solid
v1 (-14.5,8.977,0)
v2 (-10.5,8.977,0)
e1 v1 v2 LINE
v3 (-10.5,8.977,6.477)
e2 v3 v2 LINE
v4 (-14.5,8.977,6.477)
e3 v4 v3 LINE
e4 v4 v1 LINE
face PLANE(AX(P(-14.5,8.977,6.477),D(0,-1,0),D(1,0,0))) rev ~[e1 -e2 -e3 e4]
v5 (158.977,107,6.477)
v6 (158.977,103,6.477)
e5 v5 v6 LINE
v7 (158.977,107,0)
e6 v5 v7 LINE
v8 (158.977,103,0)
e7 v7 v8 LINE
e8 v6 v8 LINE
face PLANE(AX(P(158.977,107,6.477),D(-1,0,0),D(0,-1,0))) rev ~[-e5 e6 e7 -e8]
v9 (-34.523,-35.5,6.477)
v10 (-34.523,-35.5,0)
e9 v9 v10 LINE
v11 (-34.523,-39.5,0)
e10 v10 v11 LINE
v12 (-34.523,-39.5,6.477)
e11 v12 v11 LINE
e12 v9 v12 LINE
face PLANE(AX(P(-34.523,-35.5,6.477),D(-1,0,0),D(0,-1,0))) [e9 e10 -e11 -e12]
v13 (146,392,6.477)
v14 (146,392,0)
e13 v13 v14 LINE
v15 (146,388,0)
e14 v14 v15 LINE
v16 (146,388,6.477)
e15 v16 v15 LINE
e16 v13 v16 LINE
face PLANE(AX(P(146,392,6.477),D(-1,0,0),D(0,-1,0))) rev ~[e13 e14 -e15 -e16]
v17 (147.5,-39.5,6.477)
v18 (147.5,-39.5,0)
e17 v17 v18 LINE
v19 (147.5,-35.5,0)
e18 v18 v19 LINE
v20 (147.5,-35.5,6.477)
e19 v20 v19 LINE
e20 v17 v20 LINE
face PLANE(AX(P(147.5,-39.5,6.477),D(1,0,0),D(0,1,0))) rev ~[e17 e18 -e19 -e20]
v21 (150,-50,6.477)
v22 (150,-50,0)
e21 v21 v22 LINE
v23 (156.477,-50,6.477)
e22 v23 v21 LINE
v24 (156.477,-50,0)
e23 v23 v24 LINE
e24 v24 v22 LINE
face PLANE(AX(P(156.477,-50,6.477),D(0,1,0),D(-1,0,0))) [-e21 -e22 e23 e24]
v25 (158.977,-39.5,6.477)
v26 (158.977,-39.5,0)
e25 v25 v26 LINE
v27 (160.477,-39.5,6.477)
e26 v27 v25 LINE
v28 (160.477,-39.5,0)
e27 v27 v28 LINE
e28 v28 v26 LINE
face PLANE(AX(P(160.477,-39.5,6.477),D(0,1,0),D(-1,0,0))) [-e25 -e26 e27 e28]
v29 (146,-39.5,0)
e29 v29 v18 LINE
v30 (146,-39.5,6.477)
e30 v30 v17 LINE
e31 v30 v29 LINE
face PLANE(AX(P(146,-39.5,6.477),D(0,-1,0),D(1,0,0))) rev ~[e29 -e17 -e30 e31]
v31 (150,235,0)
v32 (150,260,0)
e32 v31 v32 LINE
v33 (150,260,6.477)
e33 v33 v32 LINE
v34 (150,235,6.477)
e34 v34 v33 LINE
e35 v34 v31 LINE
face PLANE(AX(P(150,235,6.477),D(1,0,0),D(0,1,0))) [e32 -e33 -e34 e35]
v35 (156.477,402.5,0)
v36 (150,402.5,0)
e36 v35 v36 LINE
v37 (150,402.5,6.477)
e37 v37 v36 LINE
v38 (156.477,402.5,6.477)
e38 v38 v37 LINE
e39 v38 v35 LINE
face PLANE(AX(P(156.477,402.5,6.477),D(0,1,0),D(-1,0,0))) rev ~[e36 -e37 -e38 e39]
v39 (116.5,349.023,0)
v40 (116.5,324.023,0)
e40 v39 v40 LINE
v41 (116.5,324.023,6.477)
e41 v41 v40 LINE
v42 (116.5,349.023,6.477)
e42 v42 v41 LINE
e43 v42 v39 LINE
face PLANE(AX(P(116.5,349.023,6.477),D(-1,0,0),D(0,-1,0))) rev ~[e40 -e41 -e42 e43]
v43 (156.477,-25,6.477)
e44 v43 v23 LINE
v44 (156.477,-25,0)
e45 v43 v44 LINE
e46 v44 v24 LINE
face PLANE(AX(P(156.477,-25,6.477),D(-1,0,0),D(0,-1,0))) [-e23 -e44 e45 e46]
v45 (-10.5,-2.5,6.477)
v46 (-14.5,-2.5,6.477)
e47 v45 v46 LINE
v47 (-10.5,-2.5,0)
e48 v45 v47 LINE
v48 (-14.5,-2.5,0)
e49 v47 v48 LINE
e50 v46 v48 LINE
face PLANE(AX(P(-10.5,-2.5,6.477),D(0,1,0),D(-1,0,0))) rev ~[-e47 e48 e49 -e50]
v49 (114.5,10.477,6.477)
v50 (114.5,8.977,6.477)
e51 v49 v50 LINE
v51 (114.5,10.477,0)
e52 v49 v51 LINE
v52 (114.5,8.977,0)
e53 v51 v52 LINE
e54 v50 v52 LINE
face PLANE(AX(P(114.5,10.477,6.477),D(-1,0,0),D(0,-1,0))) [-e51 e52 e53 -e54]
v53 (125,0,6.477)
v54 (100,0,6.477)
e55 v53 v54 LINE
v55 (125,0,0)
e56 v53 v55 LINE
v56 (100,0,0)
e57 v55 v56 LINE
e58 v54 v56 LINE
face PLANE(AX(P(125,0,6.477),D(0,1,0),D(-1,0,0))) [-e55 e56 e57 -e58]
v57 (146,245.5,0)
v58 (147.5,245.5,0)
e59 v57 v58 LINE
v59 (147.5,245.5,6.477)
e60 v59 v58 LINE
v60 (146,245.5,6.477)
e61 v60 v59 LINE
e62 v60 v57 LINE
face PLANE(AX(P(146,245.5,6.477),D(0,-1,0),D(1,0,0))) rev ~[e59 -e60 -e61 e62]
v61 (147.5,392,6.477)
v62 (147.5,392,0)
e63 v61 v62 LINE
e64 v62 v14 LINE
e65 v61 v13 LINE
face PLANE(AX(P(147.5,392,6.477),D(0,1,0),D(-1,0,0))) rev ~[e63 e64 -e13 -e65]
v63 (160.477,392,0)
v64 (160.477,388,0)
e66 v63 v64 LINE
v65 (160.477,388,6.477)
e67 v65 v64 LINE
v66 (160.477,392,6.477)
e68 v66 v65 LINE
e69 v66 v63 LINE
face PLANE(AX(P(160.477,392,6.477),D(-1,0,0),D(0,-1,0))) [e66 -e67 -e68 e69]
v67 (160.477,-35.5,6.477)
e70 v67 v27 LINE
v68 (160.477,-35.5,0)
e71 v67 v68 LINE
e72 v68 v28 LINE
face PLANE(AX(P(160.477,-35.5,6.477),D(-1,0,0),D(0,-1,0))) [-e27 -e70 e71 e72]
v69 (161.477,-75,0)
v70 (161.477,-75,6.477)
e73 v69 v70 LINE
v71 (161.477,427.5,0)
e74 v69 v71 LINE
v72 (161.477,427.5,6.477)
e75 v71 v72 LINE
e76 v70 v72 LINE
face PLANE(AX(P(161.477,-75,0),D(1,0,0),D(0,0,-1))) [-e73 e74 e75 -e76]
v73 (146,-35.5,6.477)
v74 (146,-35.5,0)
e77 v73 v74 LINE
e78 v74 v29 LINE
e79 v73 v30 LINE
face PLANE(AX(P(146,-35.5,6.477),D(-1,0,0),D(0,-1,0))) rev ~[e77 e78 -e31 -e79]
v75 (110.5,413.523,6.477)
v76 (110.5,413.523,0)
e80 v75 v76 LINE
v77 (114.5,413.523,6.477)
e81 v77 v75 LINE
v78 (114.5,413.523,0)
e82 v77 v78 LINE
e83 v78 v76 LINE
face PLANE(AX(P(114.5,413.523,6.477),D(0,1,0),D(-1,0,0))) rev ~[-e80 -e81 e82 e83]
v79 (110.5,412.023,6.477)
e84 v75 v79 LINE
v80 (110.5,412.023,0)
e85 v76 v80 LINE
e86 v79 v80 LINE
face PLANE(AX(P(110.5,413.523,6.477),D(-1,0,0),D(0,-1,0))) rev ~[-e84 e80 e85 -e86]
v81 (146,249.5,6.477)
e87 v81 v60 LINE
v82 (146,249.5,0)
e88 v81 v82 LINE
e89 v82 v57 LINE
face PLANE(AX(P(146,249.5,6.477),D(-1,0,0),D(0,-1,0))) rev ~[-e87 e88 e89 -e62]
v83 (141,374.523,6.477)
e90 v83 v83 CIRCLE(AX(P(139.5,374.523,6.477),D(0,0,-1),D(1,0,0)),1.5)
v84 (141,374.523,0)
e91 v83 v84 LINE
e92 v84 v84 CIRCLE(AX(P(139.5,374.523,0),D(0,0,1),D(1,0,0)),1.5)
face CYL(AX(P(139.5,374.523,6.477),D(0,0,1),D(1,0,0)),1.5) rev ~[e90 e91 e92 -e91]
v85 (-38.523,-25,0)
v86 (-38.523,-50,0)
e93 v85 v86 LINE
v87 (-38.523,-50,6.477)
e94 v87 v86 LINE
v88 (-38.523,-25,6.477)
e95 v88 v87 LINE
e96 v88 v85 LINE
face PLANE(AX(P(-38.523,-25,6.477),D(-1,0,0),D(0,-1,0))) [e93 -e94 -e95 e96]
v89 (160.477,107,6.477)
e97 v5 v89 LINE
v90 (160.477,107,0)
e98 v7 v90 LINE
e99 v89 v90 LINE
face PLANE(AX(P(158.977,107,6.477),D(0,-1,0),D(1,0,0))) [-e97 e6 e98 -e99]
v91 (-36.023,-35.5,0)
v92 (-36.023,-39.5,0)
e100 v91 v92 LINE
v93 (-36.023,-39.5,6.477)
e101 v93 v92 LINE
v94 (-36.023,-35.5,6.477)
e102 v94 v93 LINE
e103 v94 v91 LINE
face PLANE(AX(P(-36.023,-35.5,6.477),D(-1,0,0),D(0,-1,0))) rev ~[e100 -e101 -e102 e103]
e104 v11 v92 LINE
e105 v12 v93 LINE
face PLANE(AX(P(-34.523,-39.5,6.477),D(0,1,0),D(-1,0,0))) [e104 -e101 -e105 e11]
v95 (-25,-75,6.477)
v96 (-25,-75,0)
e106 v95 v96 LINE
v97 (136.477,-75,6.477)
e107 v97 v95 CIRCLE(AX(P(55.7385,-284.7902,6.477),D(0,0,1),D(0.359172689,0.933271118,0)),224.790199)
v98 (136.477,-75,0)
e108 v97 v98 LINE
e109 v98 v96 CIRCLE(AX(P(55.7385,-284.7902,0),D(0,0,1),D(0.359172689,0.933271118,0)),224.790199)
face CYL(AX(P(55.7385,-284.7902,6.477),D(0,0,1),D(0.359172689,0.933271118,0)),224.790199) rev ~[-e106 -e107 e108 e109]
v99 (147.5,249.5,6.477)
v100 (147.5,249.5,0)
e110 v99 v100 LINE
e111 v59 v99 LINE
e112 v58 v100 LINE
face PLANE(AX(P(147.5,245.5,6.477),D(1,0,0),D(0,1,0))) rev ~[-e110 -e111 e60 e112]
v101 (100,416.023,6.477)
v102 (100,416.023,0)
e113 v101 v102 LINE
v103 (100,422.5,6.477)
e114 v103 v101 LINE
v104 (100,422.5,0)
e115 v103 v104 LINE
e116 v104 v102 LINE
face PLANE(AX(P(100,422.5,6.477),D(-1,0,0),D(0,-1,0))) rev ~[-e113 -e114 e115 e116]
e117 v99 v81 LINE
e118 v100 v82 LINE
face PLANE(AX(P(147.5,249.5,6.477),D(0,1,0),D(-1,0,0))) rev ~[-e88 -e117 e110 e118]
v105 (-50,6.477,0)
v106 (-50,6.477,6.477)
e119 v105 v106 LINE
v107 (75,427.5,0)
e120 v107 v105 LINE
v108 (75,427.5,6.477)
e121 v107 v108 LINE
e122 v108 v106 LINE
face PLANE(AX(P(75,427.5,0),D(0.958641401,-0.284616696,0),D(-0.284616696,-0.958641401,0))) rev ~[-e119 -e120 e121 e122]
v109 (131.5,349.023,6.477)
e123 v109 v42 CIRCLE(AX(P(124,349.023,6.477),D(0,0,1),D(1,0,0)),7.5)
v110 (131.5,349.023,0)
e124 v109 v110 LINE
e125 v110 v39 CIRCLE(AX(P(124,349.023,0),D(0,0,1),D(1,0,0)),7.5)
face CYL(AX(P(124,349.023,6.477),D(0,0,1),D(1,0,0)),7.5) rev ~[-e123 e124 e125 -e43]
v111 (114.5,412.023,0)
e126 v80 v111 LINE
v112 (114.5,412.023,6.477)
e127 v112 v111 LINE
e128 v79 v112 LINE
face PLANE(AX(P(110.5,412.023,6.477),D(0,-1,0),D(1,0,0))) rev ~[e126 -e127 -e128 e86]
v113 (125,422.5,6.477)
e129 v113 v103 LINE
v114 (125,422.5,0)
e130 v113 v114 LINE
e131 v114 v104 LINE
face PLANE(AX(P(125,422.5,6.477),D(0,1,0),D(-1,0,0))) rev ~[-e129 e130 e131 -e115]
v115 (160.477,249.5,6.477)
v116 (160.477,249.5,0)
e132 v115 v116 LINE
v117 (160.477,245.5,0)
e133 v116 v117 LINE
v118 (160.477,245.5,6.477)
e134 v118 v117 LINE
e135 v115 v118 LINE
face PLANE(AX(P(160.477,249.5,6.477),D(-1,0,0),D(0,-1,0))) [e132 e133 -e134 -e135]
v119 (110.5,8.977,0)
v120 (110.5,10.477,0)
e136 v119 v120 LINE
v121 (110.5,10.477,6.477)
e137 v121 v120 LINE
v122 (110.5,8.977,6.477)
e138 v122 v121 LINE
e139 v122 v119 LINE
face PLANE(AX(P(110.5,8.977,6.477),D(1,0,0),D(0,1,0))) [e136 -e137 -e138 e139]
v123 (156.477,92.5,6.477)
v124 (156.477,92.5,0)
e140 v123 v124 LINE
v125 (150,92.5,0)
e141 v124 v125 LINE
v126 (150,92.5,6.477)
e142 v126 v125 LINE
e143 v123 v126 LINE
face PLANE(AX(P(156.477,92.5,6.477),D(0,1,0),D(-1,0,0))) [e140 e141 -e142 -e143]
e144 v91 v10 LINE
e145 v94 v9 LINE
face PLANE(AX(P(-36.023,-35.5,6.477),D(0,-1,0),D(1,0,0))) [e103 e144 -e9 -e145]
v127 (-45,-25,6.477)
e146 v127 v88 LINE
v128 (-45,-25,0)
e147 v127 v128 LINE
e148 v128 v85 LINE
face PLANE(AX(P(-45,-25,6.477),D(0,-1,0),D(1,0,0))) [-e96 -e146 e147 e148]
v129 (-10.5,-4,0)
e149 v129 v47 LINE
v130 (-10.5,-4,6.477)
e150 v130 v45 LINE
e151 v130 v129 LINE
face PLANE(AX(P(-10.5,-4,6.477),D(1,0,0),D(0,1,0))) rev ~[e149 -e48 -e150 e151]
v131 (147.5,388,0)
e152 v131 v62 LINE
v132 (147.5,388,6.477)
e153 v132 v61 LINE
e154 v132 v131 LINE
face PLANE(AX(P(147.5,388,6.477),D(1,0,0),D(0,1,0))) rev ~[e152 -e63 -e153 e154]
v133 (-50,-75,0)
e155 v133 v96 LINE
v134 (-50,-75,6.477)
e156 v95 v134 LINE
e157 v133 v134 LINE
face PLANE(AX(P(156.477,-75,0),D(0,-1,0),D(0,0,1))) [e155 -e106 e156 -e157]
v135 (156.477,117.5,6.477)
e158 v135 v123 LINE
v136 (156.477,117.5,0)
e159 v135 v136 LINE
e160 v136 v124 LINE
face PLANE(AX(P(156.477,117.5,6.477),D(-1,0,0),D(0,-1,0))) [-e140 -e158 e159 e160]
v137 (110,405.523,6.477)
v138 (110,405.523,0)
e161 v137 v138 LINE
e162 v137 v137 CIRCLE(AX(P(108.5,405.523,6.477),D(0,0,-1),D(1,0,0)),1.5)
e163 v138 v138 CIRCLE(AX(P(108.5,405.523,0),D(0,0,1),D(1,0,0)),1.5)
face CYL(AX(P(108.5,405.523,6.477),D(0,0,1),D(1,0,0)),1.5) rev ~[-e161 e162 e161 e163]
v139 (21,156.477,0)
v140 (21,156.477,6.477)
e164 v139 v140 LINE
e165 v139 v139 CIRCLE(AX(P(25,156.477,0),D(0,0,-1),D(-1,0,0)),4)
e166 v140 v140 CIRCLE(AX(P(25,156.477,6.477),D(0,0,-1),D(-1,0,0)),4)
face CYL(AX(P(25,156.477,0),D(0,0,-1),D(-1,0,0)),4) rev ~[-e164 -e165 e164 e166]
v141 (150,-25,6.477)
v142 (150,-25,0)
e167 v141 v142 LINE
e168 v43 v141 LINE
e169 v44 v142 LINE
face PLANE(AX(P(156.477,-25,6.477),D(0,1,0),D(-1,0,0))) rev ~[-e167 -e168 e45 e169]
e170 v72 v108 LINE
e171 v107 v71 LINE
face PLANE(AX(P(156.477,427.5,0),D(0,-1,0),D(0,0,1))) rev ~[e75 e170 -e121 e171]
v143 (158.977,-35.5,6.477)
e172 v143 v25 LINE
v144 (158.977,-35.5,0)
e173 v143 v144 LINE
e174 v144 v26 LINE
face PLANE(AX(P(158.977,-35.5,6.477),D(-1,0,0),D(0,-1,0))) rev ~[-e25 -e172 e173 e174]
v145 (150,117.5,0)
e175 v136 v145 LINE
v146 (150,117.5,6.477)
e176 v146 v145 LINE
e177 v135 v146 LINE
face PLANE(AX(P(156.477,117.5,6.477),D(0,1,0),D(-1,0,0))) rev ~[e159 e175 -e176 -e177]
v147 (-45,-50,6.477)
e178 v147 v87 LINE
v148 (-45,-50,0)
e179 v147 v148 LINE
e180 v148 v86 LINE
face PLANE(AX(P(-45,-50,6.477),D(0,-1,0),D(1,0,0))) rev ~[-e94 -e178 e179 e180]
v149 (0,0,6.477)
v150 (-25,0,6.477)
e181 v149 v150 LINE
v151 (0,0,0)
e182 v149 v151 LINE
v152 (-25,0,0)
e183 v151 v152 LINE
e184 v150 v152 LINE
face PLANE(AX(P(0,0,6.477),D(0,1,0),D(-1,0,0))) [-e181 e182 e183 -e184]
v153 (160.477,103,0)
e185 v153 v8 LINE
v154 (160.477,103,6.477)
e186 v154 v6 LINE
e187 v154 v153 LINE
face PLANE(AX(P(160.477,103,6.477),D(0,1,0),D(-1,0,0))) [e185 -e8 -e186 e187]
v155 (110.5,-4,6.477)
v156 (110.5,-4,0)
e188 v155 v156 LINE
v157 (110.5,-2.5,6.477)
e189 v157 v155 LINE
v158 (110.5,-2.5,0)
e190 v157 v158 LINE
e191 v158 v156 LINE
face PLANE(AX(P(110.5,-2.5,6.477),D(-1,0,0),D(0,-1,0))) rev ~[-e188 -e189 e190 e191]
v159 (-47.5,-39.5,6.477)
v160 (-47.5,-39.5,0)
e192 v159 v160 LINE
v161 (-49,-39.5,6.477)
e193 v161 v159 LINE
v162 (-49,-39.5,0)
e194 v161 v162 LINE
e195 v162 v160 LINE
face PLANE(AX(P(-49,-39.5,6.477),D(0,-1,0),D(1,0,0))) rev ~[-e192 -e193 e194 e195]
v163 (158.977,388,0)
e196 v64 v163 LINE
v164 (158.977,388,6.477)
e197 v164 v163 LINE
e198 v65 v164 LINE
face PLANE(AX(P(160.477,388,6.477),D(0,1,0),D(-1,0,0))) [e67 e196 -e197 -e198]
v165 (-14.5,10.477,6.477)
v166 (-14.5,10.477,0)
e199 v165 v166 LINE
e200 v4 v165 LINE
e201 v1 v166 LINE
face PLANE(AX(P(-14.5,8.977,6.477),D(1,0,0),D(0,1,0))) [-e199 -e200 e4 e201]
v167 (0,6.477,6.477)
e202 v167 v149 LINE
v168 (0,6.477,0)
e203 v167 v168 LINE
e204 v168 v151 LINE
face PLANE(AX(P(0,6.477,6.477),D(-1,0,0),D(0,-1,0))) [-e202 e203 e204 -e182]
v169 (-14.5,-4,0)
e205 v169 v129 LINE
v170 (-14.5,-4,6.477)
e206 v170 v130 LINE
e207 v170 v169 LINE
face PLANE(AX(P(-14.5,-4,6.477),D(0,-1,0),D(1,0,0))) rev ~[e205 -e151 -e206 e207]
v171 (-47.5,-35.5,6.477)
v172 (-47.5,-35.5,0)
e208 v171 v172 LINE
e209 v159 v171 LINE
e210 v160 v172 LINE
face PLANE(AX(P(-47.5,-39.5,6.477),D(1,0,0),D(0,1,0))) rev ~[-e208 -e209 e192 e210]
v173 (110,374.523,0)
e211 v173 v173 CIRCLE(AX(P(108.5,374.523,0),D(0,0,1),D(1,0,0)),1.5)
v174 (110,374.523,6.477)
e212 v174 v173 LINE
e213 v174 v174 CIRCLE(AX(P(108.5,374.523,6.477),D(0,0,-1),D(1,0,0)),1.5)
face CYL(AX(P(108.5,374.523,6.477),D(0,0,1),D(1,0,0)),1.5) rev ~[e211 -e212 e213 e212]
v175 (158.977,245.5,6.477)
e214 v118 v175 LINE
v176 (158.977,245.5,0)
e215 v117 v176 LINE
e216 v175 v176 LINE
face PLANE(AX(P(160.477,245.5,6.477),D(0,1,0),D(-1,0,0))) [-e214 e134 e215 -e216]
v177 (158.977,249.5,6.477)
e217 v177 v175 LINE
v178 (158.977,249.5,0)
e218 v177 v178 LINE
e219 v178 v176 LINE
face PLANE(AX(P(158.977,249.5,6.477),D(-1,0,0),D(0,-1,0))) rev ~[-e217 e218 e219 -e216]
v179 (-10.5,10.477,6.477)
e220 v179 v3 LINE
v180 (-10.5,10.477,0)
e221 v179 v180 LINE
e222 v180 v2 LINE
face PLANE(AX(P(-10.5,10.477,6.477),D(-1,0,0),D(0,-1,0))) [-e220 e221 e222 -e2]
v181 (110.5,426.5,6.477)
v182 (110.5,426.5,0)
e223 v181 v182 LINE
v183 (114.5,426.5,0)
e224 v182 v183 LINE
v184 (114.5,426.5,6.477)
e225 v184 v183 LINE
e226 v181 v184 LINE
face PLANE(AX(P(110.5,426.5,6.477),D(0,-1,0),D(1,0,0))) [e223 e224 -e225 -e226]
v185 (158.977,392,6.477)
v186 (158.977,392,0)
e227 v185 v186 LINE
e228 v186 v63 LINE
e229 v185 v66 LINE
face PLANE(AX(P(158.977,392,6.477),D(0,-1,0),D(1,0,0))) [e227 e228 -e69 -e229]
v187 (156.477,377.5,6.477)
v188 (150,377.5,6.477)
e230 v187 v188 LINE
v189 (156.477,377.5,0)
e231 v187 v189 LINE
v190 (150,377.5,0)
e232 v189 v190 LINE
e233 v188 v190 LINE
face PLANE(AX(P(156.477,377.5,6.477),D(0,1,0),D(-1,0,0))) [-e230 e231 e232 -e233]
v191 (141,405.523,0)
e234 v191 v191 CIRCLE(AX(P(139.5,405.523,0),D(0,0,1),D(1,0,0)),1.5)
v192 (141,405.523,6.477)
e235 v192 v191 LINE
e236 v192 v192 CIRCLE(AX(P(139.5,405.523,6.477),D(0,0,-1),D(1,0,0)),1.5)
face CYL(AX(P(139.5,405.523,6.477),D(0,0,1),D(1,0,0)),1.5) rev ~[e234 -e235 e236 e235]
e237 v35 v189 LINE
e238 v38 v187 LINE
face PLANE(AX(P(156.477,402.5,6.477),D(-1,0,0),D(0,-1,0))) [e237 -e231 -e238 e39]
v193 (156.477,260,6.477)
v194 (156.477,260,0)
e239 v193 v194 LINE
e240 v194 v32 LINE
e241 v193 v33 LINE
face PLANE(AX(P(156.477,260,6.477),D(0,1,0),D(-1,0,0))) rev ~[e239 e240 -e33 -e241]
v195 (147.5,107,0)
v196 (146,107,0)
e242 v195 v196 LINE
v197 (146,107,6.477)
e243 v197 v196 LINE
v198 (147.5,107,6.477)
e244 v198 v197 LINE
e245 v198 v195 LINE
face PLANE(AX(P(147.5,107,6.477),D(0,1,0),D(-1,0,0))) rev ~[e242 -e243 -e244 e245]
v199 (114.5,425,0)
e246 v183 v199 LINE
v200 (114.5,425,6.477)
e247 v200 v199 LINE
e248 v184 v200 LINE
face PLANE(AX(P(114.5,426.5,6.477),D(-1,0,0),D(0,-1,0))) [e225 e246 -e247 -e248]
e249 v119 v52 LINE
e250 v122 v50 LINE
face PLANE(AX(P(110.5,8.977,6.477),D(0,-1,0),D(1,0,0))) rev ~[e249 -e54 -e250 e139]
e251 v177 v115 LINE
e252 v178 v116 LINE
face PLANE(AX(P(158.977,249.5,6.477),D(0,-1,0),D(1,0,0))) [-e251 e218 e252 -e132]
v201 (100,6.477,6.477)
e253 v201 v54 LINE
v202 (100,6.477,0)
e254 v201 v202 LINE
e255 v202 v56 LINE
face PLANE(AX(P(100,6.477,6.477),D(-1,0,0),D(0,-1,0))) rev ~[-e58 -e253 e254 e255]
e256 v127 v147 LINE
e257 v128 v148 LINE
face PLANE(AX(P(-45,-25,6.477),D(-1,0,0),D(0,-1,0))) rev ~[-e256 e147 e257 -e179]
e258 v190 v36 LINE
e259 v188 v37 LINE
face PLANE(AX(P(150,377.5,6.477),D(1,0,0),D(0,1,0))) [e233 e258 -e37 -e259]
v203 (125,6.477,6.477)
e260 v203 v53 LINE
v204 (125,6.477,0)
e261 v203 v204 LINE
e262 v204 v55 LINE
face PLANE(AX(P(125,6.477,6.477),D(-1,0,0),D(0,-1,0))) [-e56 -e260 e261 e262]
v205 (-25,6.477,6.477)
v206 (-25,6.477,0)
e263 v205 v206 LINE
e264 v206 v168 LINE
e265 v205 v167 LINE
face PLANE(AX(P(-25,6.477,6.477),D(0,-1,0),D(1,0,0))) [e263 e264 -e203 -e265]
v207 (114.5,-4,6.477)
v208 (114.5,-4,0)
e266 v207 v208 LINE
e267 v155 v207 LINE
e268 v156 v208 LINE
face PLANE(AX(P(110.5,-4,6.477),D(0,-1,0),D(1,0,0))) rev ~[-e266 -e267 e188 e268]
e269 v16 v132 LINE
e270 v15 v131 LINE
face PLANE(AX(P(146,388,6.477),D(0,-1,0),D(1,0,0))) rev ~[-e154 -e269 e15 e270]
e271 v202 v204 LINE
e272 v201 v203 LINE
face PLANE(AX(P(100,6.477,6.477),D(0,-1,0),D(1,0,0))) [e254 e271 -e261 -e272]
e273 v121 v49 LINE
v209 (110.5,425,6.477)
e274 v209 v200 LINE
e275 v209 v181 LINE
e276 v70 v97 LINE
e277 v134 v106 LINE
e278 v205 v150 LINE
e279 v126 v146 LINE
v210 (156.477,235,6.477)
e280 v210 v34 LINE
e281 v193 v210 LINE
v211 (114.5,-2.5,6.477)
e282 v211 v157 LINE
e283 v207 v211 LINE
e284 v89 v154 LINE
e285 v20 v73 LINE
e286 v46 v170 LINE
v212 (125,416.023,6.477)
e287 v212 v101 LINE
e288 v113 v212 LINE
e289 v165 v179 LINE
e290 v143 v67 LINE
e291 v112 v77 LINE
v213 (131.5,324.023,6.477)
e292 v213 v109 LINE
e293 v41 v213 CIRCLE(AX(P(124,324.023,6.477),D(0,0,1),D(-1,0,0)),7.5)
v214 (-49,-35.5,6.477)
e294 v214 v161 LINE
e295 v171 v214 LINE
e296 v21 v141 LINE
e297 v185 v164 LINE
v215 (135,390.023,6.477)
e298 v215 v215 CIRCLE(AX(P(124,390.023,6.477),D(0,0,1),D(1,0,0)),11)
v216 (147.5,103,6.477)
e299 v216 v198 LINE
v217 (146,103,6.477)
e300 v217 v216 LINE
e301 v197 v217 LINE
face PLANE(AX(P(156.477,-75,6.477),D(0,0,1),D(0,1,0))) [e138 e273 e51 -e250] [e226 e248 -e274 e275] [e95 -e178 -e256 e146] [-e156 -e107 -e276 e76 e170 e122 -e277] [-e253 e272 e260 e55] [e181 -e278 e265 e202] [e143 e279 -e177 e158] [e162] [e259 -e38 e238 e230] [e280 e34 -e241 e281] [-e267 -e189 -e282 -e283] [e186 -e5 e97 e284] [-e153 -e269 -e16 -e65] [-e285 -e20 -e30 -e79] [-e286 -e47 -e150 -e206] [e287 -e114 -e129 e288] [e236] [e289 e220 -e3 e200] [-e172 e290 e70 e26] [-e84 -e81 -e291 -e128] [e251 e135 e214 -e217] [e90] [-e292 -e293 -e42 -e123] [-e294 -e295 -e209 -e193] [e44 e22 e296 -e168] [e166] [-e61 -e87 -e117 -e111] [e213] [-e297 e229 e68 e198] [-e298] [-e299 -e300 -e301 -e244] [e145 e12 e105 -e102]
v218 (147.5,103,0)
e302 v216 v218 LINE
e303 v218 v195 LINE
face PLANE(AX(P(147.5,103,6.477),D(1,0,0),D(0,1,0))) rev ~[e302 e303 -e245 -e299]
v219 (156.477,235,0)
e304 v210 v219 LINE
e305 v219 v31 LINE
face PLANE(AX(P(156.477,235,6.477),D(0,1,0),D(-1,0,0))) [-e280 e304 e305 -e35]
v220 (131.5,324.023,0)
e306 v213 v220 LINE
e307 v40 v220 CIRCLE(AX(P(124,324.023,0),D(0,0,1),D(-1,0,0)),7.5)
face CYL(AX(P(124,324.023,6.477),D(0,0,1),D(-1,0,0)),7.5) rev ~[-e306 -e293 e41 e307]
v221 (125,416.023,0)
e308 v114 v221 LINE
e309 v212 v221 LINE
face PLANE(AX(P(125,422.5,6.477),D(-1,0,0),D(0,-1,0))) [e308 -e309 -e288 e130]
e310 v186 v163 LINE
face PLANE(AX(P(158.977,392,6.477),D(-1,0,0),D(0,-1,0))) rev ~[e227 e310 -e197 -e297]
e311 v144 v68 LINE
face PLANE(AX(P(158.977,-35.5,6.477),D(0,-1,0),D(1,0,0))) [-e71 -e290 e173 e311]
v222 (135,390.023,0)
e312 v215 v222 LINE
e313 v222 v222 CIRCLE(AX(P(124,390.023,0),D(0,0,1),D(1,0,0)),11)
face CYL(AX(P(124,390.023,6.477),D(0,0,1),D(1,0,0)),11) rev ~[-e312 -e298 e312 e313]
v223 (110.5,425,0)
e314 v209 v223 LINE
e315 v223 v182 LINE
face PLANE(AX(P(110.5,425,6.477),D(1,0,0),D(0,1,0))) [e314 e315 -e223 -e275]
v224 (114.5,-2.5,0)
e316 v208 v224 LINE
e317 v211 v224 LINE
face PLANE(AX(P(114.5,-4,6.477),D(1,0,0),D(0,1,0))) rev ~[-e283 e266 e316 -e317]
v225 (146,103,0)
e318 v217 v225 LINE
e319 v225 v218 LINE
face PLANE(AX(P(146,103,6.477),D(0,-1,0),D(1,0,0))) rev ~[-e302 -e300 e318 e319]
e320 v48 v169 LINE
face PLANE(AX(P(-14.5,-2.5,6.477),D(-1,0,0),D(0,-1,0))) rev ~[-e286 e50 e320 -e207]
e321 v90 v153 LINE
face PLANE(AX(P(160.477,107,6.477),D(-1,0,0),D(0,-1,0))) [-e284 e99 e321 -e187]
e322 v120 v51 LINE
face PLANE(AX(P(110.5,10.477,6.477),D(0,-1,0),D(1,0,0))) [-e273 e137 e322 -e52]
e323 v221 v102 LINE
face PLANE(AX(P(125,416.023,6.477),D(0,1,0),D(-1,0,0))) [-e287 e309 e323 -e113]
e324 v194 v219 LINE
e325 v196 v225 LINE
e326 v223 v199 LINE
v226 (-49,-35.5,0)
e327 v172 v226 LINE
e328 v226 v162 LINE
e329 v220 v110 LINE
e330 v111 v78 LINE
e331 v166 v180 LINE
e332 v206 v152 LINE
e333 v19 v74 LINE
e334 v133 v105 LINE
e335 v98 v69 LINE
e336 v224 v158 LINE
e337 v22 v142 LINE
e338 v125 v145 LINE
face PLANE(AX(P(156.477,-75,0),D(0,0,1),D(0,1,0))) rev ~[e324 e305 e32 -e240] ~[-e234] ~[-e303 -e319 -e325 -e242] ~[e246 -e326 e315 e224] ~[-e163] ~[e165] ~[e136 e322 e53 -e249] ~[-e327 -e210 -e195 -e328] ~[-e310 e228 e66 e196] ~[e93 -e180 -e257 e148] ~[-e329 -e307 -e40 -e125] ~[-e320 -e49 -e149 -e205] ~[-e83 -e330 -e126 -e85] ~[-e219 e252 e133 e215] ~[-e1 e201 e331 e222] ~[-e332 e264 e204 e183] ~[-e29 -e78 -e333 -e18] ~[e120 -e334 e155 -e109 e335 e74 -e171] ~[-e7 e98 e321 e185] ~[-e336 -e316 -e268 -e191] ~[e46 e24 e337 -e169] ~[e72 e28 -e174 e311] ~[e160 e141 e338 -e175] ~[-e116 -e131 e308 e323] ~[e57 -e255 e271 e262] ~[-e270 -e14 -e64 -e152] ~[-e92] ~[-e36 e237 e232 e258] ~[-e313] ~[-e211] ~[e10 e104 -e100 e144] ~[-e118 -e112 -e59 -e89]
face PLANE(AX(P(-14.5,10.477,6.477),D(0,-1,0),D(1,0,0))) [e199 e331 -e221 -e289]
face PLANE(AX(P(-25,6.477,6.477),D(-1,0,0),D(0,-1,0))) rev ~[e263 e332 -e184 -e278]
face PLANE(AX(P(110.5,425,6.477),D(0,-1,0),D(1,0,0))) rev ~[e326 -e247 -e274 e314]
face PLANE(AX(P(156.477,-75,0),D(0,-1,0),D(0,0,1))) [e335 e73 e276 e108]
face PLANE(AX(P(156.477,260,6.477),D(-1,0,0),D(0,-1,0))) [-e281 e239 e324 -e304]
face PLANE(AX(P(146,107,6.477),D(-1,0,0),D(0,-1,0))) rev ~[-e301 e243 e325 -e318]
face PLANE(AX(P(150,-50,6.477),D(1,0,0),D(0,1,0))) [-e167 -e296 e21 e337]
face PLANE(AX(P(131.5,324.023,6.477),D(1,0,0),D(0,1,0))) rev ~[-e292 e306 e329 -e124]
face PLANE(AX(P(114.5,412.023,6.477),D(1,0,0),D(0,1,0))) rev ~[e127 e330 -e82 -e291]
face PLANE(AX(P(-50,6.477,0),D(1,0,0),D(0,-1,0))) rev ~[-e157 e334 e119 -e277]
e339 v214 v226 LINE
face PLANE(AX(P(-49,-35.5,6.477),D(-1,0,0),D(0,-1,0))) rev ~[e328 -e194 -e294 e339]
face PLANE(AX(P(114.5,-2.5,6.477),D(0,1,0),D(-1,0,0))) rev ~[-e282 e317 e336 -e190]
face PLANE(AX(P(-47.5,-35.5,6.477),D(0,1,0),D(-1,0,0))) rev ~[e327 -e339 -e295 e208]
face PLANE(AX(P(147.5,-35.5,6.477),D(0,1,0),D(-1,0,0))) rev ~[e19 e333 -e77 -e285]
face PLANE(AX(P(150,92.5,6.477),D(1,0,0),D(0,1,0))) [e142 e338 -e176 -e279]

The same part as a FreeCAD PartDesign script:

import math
import FreeCAD as App
import Part
import Sketcher

V = App.Vector


def add_polygon(sketch, points):
    """Adds a closed chain of lines whose ends are joined by coincident constraints."""
    first, n = sketch.GeometryCount, len(points)
    for a, b in zip(points, points[1:] + points[:1]):
        sketch.addGeometry(Part.LineSegment(App.Vector(*a, 0), App.Vector(*b, 0)), False)
    for i in range(n):
        sketch.addConstraint(Sketcher.Constraint("Coincident", first + i, 2, first + (i + 1) % n, 1))

doc = App.newDocument("Part")
body = doc.addObject("PartDesign::Body", "Body")

# Sketch on XY plane
sketch1 = body.newObject("Sketcher::SketchObject", "Sketch")
sketch1.AttachmentSupport = (doc.getObject("XY_Plane"), [""])
sketch1.MapMode = "FlatFace"
add_polygon(sketch1, [(-50, 6), (-50, -75), (156, -75), (156, 428), (75, 428)])  # lines 0-4
sketch1.addConstraint(Sketcher.Constraint("Vertical", 0))
sketch1.addConstraint(Sketcher.Constraint("Horizontal", 1))
sketch1.addConstraint(Sketcher.Constraint("Vertical", 2))
sketch1.addConstraint(Sketcher.Constraint("Horizontal", 3))
sketch1.addConstraint(Sketcher.Constraint("Equal", 3, 0))
sketch1.addConstraint(Sketcher.Constraint("DistanceY", 0, 2, -1, 1, 75.0))
sketch1.addConstraint(Sketcher.Constraint("DistanceX", -1, 1, 3, 2, 75.0))
sketch1.addConstraint(Sketcher.Constraint("DistanceY", 2, 1, 2, 2, 502.5))
sketch1.addConstraint(Sketcher.Constraint("DistanceX", 0, 2, -1, 1, 50.0))
sketch1.addConstraint(Sketcher.Constraint("DistanceX", 1, 1, 1, 2, 206.477))
pad1 = body.newObject("PartDesign::Pad", "Pad")
pad1.Profile = sketch1
pad1.Length = 6.477

# Sketch on YZ plane
sketch2 = body.newObject("Sketcher::SketchObject", "Sketch001")
sketch2.AttachmentSupport = (doc.getObject("YZ_Plane"), [""])
sketch2.MapMode = "FlatFace"
sketch2.AttachmentOffset = App.Placement(V(0, 0, 156.477), App.Rotation())
add_polygon(sketch2, [(-75, 6), (-75, 0), (428, 0), (428, 6)])  # lines 0-3
sketch2.addConstraint(Sketcher.Constraint("Vertical", 0))
sketch2.addConstraint(Sketcher.Constraint("Horizontal", 1))
sketch2.addConstraint(Sketcher.Constraint("Vertical", 2))
sketch2.addConstraint(Sketcher.Constraint("Horizontal", 3))
sketch2.addConstraint(Sketcher.Constraint("PointOnObject", 0, 2, -1))
sketch2.addConstraint(Sketcher.Constraint("DistanceX", 1, 1, 1, 2, 502.5))
sketch2.addConstraint(Sketcher.Constraint("DistanceX", 0, 2, -1, 1, 75.0))
sketch2.addConstraint(Sketcher.Constraint("DistanceY", 0, 2, 0, 1, 6.477))
pad2 = body.newObject("PartDesign::Pad", "Pad001")
pad2.Profile = sketch2
pad2.Length = 5

# Sketch on XY plane
sketch3 = body.newObject("Sketcher::SketchObject", "Sketch002")
sketch3.AttachmentSupport = (doc.getObject("XY_Plane"), [""])
sketch3.MapMode = "FlatFace"
sketch3.AttachmentOffset = App.Placement(V(0, 0, 6.477), App.Rotation())
sketch3.addGeometry(Part.ArcOfCircle(Part.Circle(V(56, -285, 0), V(0, 0, 1), 225), math.radians(69), math.radians(111)), False)
sketch3.addGeometry(Part.LineSegment(V(-25, -75, 0), V(136, -75, 0)), False)
sketch3.addConstraint(Sketcher.Constraint("Coincident", 0, 1, 1, 2))
sketch3.addConstraint(Sketcher.Constraint("Coincident", 1, 1, 0, 2))
sketch3.addConstraint(Sketcher.Constraint("Horizontal", 1))
sketch3.addConstraint(Sketcher.Constraint("DistanceX", 1, 1, -1, 1, 25.0))
sketch3.addConstraint(Sketcher.Constraint("DistanceY", 0, 1, -1, 1, 75.0))
sketch3.addConstraint(Sketcher.Constraint("Radius", 0, 224.7902))
sketch3.addConstraint(Sketcher.Constraint("DistanceX", 1, 1, 1, 2, 161.477))
pocket1 = body.newObject("PartDesign::Pocket", "Pocket")
pocket1.Profile = sketch3
pocket1.Type = "ThroughAll"

# Sketch on XY plane
sketch4 = body.newObject("Sketcher::SketchObject", "Sketch003")
sketch4.AttachmentSupport = (doc.getObject("XY_Plane"), [""])
sketch4.MapMode = "FlatFace"
sketch4.AttachmentOffset = App.Placement(V(0, 0, 6.477), App.Rotation())
add_polygon(sketch4, [(-39, -25), (-45, -25), (-45, -50), (-39, -50)])  # lines 0-3
add_polygon(sketch4, [(150, -25), (150, -50), (156, -50), (156, -25)])  # lines 4-7
add_polygon(sketch4, [(150, 118), (150, 92), (156, 92), (156, 118)])  # lines 8-11
add_polygon(sketch4, [(150, 260), (150, 235), (156, 235), (156, 260)])  # lines 12-15
add_polygon(sketch4, [(150, 402), (150, 378), (156, 378), (156, 402)])  # lines 16-19
add_polygon(sketch4, [(125, 416), (125, 422), (100, 422), (100, 416)])  # lines 20-23
add_polygon(sketch4, [(-25, 0), (0, 0), (0, 6), (-25, 6)])  # lines 24-27
add_polygon(sketch4, [(100, 0), (125, 0), (125, 6), (100, 6)])  # lines 28-31
sketch4.addConstraint(Sketcher.Constraint("Horizontal", 0))
sketch4.addConstraint(Sketcher.Constraint("Vertical", 1))
sketch4.addConstraint(Sketcher.Constraint("Horizontal", 2))
sketch4.addConstraint(Sketcher.Constraint("Vertical", 3))
sketch4.addConstraint(Sketcher.Constraint("Vertical", 4))
sketch4.addConstraint(Sketcher.Constraint("Horizontal", 5))
sketch4.addConstraint(Sketcher.Constraint("Vertical", 6))
sketch4.addConstraint(Sketcher.Constraint("Horizontal", 7))
sketch4.addConstraint(Sketcher.Constraint("Vertical", 8))
sketch4.addConstraint(Sketcher.Constraint("Horizontal", 9))
sketch4.addConstraint(Sketcher.Constraint("Vertical", 10))
sketch4.addConstraint(Sketcher.Constraint("Horizontal", 11))
sketch4.addConstraint(Sketcher.Constraint("Vertical", 12))
sketch4.addConstraint(Sketcher.Constraint("Horizontal", 13))
sketch4.addConstraint(Sketcher.Constraint("Vertical", 14))
sketch4.addConstraint(Sketcher.Constraint("Horizontal", 15))
sketch4.addConstraint(Sketcher.Constraint("Vertical", 16))
sketch4.addConstraint(Sketcher.Constraint("Horizontal", 17))
sketch4.addConstraint(Sketcher.Constraint("Vertical", 18))
sketch4.addConstraint(Sketcher.Constraint("Horizontal", 19))
sketch4.addConstraint(Sketcher.Constraint("Vertical", 20))
sketch4.addConstraint(Sketcher.Constraint("Horizontal", 21))
sketch4.addConstraint(Sketcher.Constraint("Vertical", 22))
sketch4.addConstraint(Sketcher.Constraint("Horizontal", 23))
sketch4.addConstraint(Sketcher.Constraint("Horizontal", 24))
sketch4.addConstraint(Sketcher.Constraint("Vertical", 25))
sketch4.addConstraint(Sketcher.Constraint("Horizontal", 26))
sketch4.addConstraint(Sketcher.Constraint("Vertical", 27))
sketch4.addConstraint(Sketcher.Constraint("Horizontal", 28))
sketch4.addConstraint(Sketcher.Constraint("Vertical", 29))
sketch4.addConstraint(Sketcher.Constraint("Horizontal", 30))
sketch4.addConstraint(Sketcher.Constraint("Vertical", 31))
sketch4.addConstraint(Sketcher.Constraint("Coincident", 24, 2, -1, 1))
sketch4.addConstraint(Sketcher.Constraint("PointOnObject", 28, 2, -1))
sketch4.addConstraint(Sketcher.Constraint("Horizontal", 2, 2, 4, 2))
sketch4.addConstraint(Sketcher.Constraint("Horizontal", 3, 2, 6, 2))
sketch4.addConstraint(Sketcher.Constraint("Horizontal", 26, 2, 29, 2))
sketch4.addConstraint(Sketcher.Constraint("Vertical", 7, 2, 8, 2))
sketch4.addConstraint(Sketcher.Constraint("Vertical", 6, 2, 9, 2))
sketch4.addConstraint(Sketcher.Constraint("Vertical", 11, 2, 12, 2))
sketch4.addConstraint(Sketcher.Constraint("Vertical", 10, 2, 13, 2))
sketch4.addConstraint(Sketcher.Constraint("Vertical", 15, 2, 16, 2))
sketch4.addConstraint(Sketcher.Constraint("Vertical", 14, 2, 17, 2))
sketch4.addConstraint(Sketcher.Constraint("Vertical", 23, 2, 28, 2))
sketch4.addConstraint(Sketcher.Constraint("Vertical", 22, 2, 30, 2))
sketch4.addConstraint(Sketcher.Constraint("Equal", 2, 5))
sketch4.addConstraint(Sketcher.Constraint("Equal", 23, 24))
sketch4.addConstraint(Sketcher.Constraint("Equal", 30, 1))
sketch4.addConstraint(Sketcher.Constraint("Equal", 6, 8))
sketch4.addConstraint(Sketcher.Constraint("Equal", 10, 12))
sketch4.addConstraint(Sketcher.Constraint("Equal", 14, 16))
sketch4.addConstraint(Sketcher.Constraint("Equal", 19, 20))
sketch4.addConstraint(Sketcher.Constraint("Equal", 22, 25))
sketch4.addConstraint(Sketcher.Constraint("DistanceX", 21, 2, 21, 1, 25.0))
sketch4.addConstraint(Sketcher.Constraint("DistanceX", 0, 2, -1, 1, 45.0))
sketch4.addConstraint(Sketcher.Constraint("DistanceY", 0, 2, -1, 1, 25.0))
sketch4.addConstraint(Sketcher.Constraint("DistanceX", -1, 1, 4, 2, 150.0))
sketch4.addConstraint(Sketcher.Constraint("DistanceY", -1, 1, 12, 2, 235.0))
sketch4.addConstraint(Sketcher.Constraint("DistanceX", -1, 1, 20, 2, 125.0))
sketch4.addConstraint(Sketcher.Constraint("DistanceY", 11, 2, 16, 2, 260.0))
sketch4.addConstraint(Sketcher.Constraint("DistanceY", 19, 2, 20, 2, 20.0))
sketch4.addConstraint(Sketcher.Constraint("DistanceY", -1, 1, 8, 2, 92.5))
sketch4.addConstraint(Sketcher.Constraint("DistanceX", 0, 2, 0, 1, 6.477))
pocket2 = body.newObject("PartDesign::Pocket", "Pocket001")
pocket2.Profile = sketch4
pocket2.Type = "ThroughAll"

# Sketch on XY plane
sketch5 = body.newObject("Sketcher::SketchObject", "Sketch004")
sketch5.AttachmentSupport = (doc.getObject("XY_Plane"), [""])
sketch5.MapMode = "FlatFace"
sketch5.AttachmentOffset = App.Placement(V(0, 0, 6.477), App.Rotation())
add_polygon(sketch5, [(-10.5, -2.5), (-14.5, -2.5), (-14.5, -4), (-10.5, -4)])  # lines 0-3
add_polygon(sketch5, [(-14.5, 10.5), (-14.5, 9), (-10.5, 9), (-10.5, 10.5)])  # lines 4-7
add_polygon(sketch5, [(-36, -35.5), (-36, -39.5), (-34.5, -39.5), (-34.5, -35.5)])  # lines 8-11
add_polygon(sketch5, [(-49, -39.5), (-47.5, -39.5), (-47.5, -35.5), (-49, -35.5)])  # lines 12-15
add_polygon(sketch5, [(110.5, 425), (114.5, 425), (114.5, 426.5), (110.5, 426.5)])  # lines 16-19
add_polygon(sketch5, [(114.5, 412), (114.5, 413.5), (110.5, 413.5), (110.5, 412)])  # lines 20-23
add_polygon(sketch5, [(114.5, -2.5), (110.5, -2.5), (110.5, -4), (114.5, -4)])  # lines 24-27
add_polygon(sketch5, [(110.5, 10.5), (110.5, 9), (114.5, 9), (114.5, 10.5)])  # lines 28-31
add_polygon(sketch5, [(147.5, -39.5), (147.5, -35.5), (146, -35.5), (146, -39.5)])  # lines 32-35
add_polygon(sketch5, [(160.5, -35.5), (159, -35.5), (159, -39.5), (160.5, -39.5)])  # lines 36-39
add_polygon(sketch5, [(147.5, 103), (147.5, 107), (146, 107), (146, 103)])  # lines 40-43
add_polygon(sketch5, [(160.5, 107), (159, 107), (159, 103), (160.5, 103)])  # lines 44-47
add_polygon(sketch5, [(147.5, 245.5), (147.5, 249.5), (146, 249.5), (146, 245.5)])  # lines 48-51
add_polygon(sketch5, [(160.5, 249.5), (159, 249.5), (159, 245.5), (160.5, 245.5)])  # lines 52-55
add_polygon(sketch5, [(147.5, 388), (147.5, 392), (146, 392), (146, 388)])  # lines 56-59
add_polygon(sketch5, [(160.5, 392), (159, 392), (159, 388), (160.5, 388)])  # lines 60-63
sketch5.addConstraint(Sketcher.Constraint("Horizontal", 0))
sketch5.addConstraint(Sketcher.Constraint("Vertical", 1))
sketch5.addConstraint(Sketcher.Constraint("Horizontal", 2))
sketch5.addConstraint(Sketcher.Constraint("Vertical", 3))
sketch5.addConstraint(Sketcher.Constraint("Vertical", 4))
sketch5.addConstraint(Sketcher.Constraint("Horizontal", 5))
sketch5.addConstraint(Sketcher.Constraint("Vertical", 6))
sketch5.addConstraint(Sketcher.Constraint("Horizontal", 7))
sketch5.addConstraint(Sketcher.Constraint("Vertical", 8))
sketch5.addConstraint(Sketcher.Constraint("Horizontal", 9))
sketch5.addConstraint(Sketcher.Constraint("Vertical", 10))
sketch5.addConstraint(Sketcher.Constraint("Horizontal", 11))
sketch5.addConstraint(Sketcher.Constraint("Horizontal", 12))
sketch5.addConstraint(Sketcher.Constraint("Vertical", 13))
sketch5.addConstraint(Sketcher.Constraint("Horizontal", 14))
sketch5.addConstraint(Sketcher.Constraint("Vertical", 15))
sketch5.addConstraint(Sketcher.Constraint("Horizontal", 16))
sketch5.addConstraint(Sketcher.Constraint("Vertical", 17))
sketch5.addConstraint(Sketcher.Constraint("Horizontal", 18))
sketch5.addConstraint(Sketcher.Constraint("Vertical", 19))
sketch5.addConstraint(Sketcher.Constraint("Vertical", 20))
sketch5.addConstraint(Sketcher.Constraint("Horizontal", 21))
sketch5.addConstraint(Sketcher.Constraint("Vertical", 22))
sketch5.addConstraint(Sketcher.Constraint("Horizontal", 23))
sketch5.addConstraint(Sketcher.Constraint("Horizontal", 24))
sketch5.addConstraint(Sketcher.Constraint("Vertical", 25))
sketch5.addConstraint(Sketcher.Constraint("Horizontal", 26))
sketch5.addConstraint(Sketcher.Constraint("Vertical", 27))
sketch5.addConstraint(Sketcher.Constraint("Vertical", 28))
sketch5.addConstraint(Sketcher.Constraint("Horizontal", 29))
sketch5.addConstraint(Sketcher.Constraint("Vertical", 30))
sketch5.addConstraint(Sketcher.Constraint("Horizontal", 31))
sketch5.addConstraint(Sketcher.Constraint("Vertical", 32))
sketch5.addConstraint(Sketcher.Constraint("Horizontal", 33))
sketch5.addConstraint(Sketcher.Constraint("Vertical", 34))
sketch5.addConstraint(Sketcher.Constraint("Horizontal", 35))
sketch5.addConstraint(Sketcher.Constraint("Horizontal", 36))
sketch5.addConstraint(Sketcher.Constraint("Vertical", 37))
sketch5.addConstraint(Sketcher.Constraint("Horizontal", 38))
sketch5.addConstraint(Sketcher.Constraint("Vertical", 39))
sketch5.addConstraint(Sketcher.Constraint("Vertical", 40))
sketch5.addConstraint(Sketcher.Constraint("Horizontal", 41))
sketch5.addConstraint(Sketcher.Constraint("Vertical", 42))
sketch5.addConstraint(Sketcher.Constraint("Horizontal", 43))
sketch5.addConstraint(Sketcher.Constraint("Horizontal", 44))
sketch5.addConstraint(Sketcher.Constraint("Vertical", 45))
sketch5.addConstraint(Sketcher.Constraint("Horizontal", 46))
sketch5.addConstraint(Sketcher.Constraint("Vertical", 47))
sketch5.addConstraint(Sketcher.Constraint("Vertical", 48))
sketch5.addConstraint(Sketcher.Constraint("Horizontal", 49))
sketch5.addConstraint(Sketcher.Constraint("Vertical", 50))
sketch5.addConstraint(Sketcher.Constraint("Horizontal", 51))
sketch5.addConstraint(Sketcher.Constraint("Horizontal", 52))
sketch5.addConstraint(Sketcher.Constraint("Vertical", 53))
sketch5.addConstraint(Sketcher.Constraint("Horizontal", 54))
sketch5.addConstraint(Sketcher.Constraint("Vertical", 55))
sketch5.addConstraint(Sketcher.Constraint("Vertical", 56))
sketch5.addConstraint(Sketcher.Constraint("Horizontal", 57))
sketch5.addConstraint(Sketcher.Constraint("Vertical", 58))
sketch5.addConstraint(Sketcher.Constraint("Horizontal", 59))
sketch5.addConstraint(Sketcher.Constraint("Horizontal", 60))
sketch5.addConstraint(Sketcher.Constraint("Vertical", 61))
sketch5.addConstraint(Sketcher.Constraint("Horizontal", 62))
sketch5.addConstraint(Sketcher.Constraint("Vertical", 63))
sketch5.addConstraint(Sketcher.Constraint("Horizontal", 9, 2, 12, 2))
sketch5.addConstraint(Sketcher.Constraint("Horizontal", 11, 2, 13, 2))
sketch5.addConstraint(Sketcher.Constraint("Horizontal", 3, 2, 24, 2))
sketch5.addConstraint(Sketcher.Constraint("Horizontal", 2, 2, 25, 2))
sketch5.addConstraint(Sketcher.Constraint("Horizontal", 5, 2, 28, 2))
sketch5.addConstraint(Sketcher.Constraint("Horizontal", 7, 2, 30, 2))
sketch5.addConstraint(Sketcher.Constraint("Horizontal", 14, 2, 32, 2))
sketch5.addConstraint(Sketcher.Constraint("Horizontal", 15, 2, 34, 2))
sketch5.addConstraint(Sketcher.Constraint("Horizontal", 33, 2, 36, 2))
sketch5.addConstraint(Sketcher.Constraint("Horizontal", 35, 2, 37, 2))
sketch5.addConstraint(Sketcher.Constraint("Horizontal", 41, 2, 44, 2))
sketch5.addConstraint(Sketcher.Constraint("Horizontal", 43, 2, 45, 2))
sketch5.addConstraint(Sketcher.Constraint("Horizontal", 49, 2, 52, 2))
sketch5.addConstraint(Sketcher.Constraint("Horizontal", 51, 2, 53, 2))
sketch5.addConstraint(Sketcher.Constraint("Horizontal", 57, 2, 60, 2))
sketch5.addConstraint(Sketcher.Constraint("Horizontal", 59, 2, 61, 2))
sketch5.addConstraint(Sketcher.Constraint("Vertical", 1, 2, 4, 2))
sketch5.addConstraint(Sketcher.Constraint("Vertical", 3, 2, 5, 2))
sketch5.addConstraint(Sketcher.Constraint("Vertical", 17, 2, 20, 2))
sketch5.addConstraint(Sketcher.Constraint("Vertical", 19, 2, 21, 2))
sketch5.addConstraint(Sketcher.Constraint("Vertical", 22, 2, 24, 2))
sketch5.addConstraint(Sketcher.Constraint("Vertical", 23, 2, 26, 2))
sketch5.addConstraint(Sketcher.Constraint("Vertical", 25, 2, 28, 2))
sketch5.addConstraint(Sketcher.Constraint("Vertical", 27, 2, 29, 2))
sketch5.addConstraint(Sketcher.Constraint("Vertical", 35, 2, 40, 2))
sketch5.addConstraint(Sketcher.Constraint("Vertical", 34, 2, 41, 2))
sketch5.addConstraint(Sketcher.Constraint("Vertical", 37, 2, 44, 2))
sketch5.addConstraint(Sketcher.Constraint("Vertical", 39, 2, 46, 2))
sketch5.addConstraint(Sketcher.Constraint("Vertical", 43, 2, 48, 2))
sketch5.addConstraint(Sketcher.Constraint("Vertical", 42, 2, 49, 2))
sketch5.addConstraint(Sketcher.Constraint("Vertical", 45, 2, 52, 2))
sketch5.addConstraint(Sketcher.Constraint("Vertical", 47, 2, 54, 2))
sketch5.addConstraint(Sketcher.Constraint("Vertical", 51, 2, 56, 2))
sketch5.addConstraint(Sketcher.Constraint("Vertical", 50, 2, 57, 2))
sketch5.addConstraint(Sketcher.Constraint("Vertical", 53, 2, 60, 2))
sketch5.addConstraint(Sketcher.Constraint("Vertical", 55, 2, 62, 2))
sketch5.addConstraint(Sketcher.Constraint("Equal", 11, 12))
sketch5.addConstraint(Sketcher.Constraint("Equal", 7, 16))
sketch5.addConstraint(Sketcher.Constraint("Equal", 14, 33))
sketch5.addConstraint(Sketcher.Constraint("Equal", 35, 36))
sketch5.addConstraint(Sketcher.Constraint("Equal", 62, 1))
sketch5.addConstraint(Sketcher.Constraint("Equal", 3, 4))
sketch5.addConstraint(Sketcher.Constraint("Equal", 31, 8))
sketch5.addConstraint(Sketcher.Constraint("Equal", 6, 17))
sketch5.addConstraint(Sketcher.Constraint("Equal", 19, 20))
sketch5.addConstraint(Sketcher.Constraint("Equal", 39, 40))
sketch5.addConstraint(Sketcher.Constraint("Equal", 47, 48))
sketch5.addConstraint(Sketcher.Constraint("Equal", 55, 56))
sketch5.addConstraint(Sketcher.Constraint("DistanceX", 0, 2, 0, 1, 4.0))
sketch5.addConstraint(Sketcher.Constraint("DistanceX", 9, 1, 9, 2, 1.5))
sketch5.addConstraint(Sketcher.Constraint("DistanceY", 1, 2, -1, 1, 4.0))
sketch5.addConstraint(Sketcher.Constraint("DistanceX", 14, 2, -1, 1, 49.0))
sketch5.addConstraint(Sketcher.Constraint("DistanceY", -1, 1, 16, 2, 425.0))
sketch5.addConstraint(Sketcher.Constraint("DistanceX", -1, 1, 33, 2, 146.0))
sketch5.addConstraint(Sketcher.Constraint("DistanceY", -1, 1, 40, 2, 107.0))
sketch5.addConstraint(Sketcher.Constraint("DistanceY", -1, 1, 56, 2, 392.0))
sketch5.addConstraint(Sketcher.Constraint("DistanceX", 0, 2, -1, 1, 14.5))
sketch5.addConstraint(Sketcher.Constraint("DistanceY", 8, 2, -1, 1, 39.5))
sketch5.addConstraint(Sketcher.Constraint("DistanceX", -1, 1, 16, 2, 114.5))
sketch5.addConstraint(Sketcher.Constraint("DistanceY", -1, 1, 48, 2, 249.5))
sketch5.addConstraint(Sketcher.Constraint("DistanceY", -1, 1, 4, 2, 8.977))
sketch5.addConstraint(Sketcher.Constraint("DistanceX", 8, 2, -1, 1, 36.023))
sketch5.addConstraint(Sketcher.Constraint("DistanceY", -1, 1, 20, 2, 413.523))
sketch5.addConstraint(Sketcher.Constraint("DistanceX", -1, 1, 36, 2, 158.977))
pocket3 = body.newObject("PartDesign::Pocket", "Pocket002")
pocket3.Profile = sketch5
pocket3.Type = "ThroughAll"

# Sketch on XY plane
sketch6 = body.newObject("Sketcher::SketchObject", "Sketch005")
sketch6.AttachmentSupport = (doc.getObject("XY_Plane"), [""])
sketch6.MapMode = "FlatFace"
sketch6.addGeometry(Part.Circle(V(25, 156.5, 0), V(0, 0, 1), 4), False)
sketch6.addConstraint(Sketcher.Constraint("Diameter", 0, 8.0))
sketch6.addConstraint(Sketcher.Constraint("DistanceX", -1, 1, 0, 3, 25.0))
sketch6.addConstraint(Sketcher.Constraint("DistanceY", -1, 1, 0, 3, 156.477))
pocket4 = body.newObject("PartDesign::Pocket", "Pocket003")
pocket4.Profile = sketch6
pocket4.Type = "ThroughAll"
pocket4.Reversed = True

# Sketch on XY plane
sketch7 = body.newObject("Sketcher::SketchObject", "Sketch006")
sketch7.AttachmentSupport = (doc.getObject("XY_Plane"), [""])
sketch7.MapMode = "FlatFace"
sketch7.AttachmentOffset = App.Placement(V(0, 0, 6.477), App.Rotation())
sketch7.addGeometry(Part.Circle(V(124, 390, 0), V(0, 0, 1), 11), False)
sketch7.addGeometry(Part.Circle(V(108.5, 405.5, 0), V(0, 0, 1), 1.5), False)
sketch7.addGeometry(Part.Circle(V(139.5, 405.5, 0), V(0, 0, 1), 1.5), False)
sketch7.addGeometry(Part.Circle(V(108.5, 374.5, 0), V(0, 0, 1), 1.5), False)
sketch7.addGeometry(Part.Circle(V(139.5, 374.5, 0), V(0, 0, 1), 1.5), False)
sketch7.addGeometry(Part.ArcOfCircle(Part.Circle(V(124, 349, 0), V(0, 0, 1), 7.5), math.radians(0), math.radians(180)), False)
sketch7.addGeometry(Part.LineSegment(V(116.5, 349, 0), V(116.5, 324, 0)), False)
sketch7.addGeometry(Part.ArcOfCircle(Part.Circle(V(124, 324, 0), V(0, 0, 1), 7.5), math.radians(180), math.radians(360)), False)
sketch7.addGeometry(Part.LineSegment(V(131.5, 324, 0), V(131.5, 349, 0)), False)
sketch7.addConstraint(Sketcher.Constraint("Tangent", 5, 2, 6, 1))
sketch7.addConstraint(Sketcher.Constraint("Tangent", 6, 2, 7, 1))
sketch7.addConstraint(Sketcher.Constraint("Tangent", 7, 2, 8, 1))
sketch7.addConstraint(Sketcher.Constraint("Tangent", 8, 2, 5, 1))
sketch7.addConstraint(Sketcher.Constraint("Vertical", 6))
sketch7.addConstraint(Sketcher.Constraint("Vertical", 8))
sketch7.addConstraint(Sketcher.Constraint("Equal", 1, 2))
sketch7.addConstraint(Sketcher.Constraint("Equal", 2, 3))
sketch7.addConstraint(Sketcher.Constraint("Equal", 3, 4))
sketch7.addConstraint(Sketcher.Constraint("Horizontal", 1, 3, 2, 3))
sketch7.addConstraint(Sketcher.Constraint("Horizontal", 3, 3, 4, 3))
sketch7.addConstraint(Sketcher.Constraint("Vertical", 1, 3, 3, 3))
sketch7.addConstraint(Sketcher.Constraint("Vertical", 2, 3, 4, 3))
sketch7.addConstraint(Sketcher.Constraint("Vertical", 0, 3, 5, 3))
sketch7.addConstraint(Sketcher.Constraint("Diameter", 0, 22.0))
sketch7.addConstraint(Sketcher.Constraint("Diameter", 1, 3.0))
sketch7.addConstraint(Sketcher.Constraint("Radius", 5, 7.5))
sketch7.addConstraint(Sketcher.Constraint("DistanceY", 6, 2, 6, 1, 25.0))
sketch7.addConstraint(Sketcher.Constraint("DistanceX", 1, 3, 2, 3, 31.0))
sketch7.addConstraint(Sketcher.Constraint("DistanceY", 3, 3, 1, 3, 31.0))
sketch7.addConstraint(Sketcher.Constraint("DistanceX", -1, 1, 0, 3, 124.0))
sketch7.addConstraint(Sketcher.Constraint("DistanceY", 5, 3, 0, 3, 41.0))
sketch7.addConstraint(Sketcher.Constraint("DistanceX", 3, 3, 5, 2, 8.0))
sketch7.addConstraint(Sketcher.Constraint("DistanceY", 0, 3, 1, 3, 15.5))
sketch7.addConstraint(Sketcher.Constraint("DistanceY", -1, 1, 0, 3, 390.023))
pocket5 = body.newObject("PartDesign::Pocket", "Pocket004")
pocket5.Profile = sketch7
pocket5.Type = "ThroughAll"

doc.recompute()
